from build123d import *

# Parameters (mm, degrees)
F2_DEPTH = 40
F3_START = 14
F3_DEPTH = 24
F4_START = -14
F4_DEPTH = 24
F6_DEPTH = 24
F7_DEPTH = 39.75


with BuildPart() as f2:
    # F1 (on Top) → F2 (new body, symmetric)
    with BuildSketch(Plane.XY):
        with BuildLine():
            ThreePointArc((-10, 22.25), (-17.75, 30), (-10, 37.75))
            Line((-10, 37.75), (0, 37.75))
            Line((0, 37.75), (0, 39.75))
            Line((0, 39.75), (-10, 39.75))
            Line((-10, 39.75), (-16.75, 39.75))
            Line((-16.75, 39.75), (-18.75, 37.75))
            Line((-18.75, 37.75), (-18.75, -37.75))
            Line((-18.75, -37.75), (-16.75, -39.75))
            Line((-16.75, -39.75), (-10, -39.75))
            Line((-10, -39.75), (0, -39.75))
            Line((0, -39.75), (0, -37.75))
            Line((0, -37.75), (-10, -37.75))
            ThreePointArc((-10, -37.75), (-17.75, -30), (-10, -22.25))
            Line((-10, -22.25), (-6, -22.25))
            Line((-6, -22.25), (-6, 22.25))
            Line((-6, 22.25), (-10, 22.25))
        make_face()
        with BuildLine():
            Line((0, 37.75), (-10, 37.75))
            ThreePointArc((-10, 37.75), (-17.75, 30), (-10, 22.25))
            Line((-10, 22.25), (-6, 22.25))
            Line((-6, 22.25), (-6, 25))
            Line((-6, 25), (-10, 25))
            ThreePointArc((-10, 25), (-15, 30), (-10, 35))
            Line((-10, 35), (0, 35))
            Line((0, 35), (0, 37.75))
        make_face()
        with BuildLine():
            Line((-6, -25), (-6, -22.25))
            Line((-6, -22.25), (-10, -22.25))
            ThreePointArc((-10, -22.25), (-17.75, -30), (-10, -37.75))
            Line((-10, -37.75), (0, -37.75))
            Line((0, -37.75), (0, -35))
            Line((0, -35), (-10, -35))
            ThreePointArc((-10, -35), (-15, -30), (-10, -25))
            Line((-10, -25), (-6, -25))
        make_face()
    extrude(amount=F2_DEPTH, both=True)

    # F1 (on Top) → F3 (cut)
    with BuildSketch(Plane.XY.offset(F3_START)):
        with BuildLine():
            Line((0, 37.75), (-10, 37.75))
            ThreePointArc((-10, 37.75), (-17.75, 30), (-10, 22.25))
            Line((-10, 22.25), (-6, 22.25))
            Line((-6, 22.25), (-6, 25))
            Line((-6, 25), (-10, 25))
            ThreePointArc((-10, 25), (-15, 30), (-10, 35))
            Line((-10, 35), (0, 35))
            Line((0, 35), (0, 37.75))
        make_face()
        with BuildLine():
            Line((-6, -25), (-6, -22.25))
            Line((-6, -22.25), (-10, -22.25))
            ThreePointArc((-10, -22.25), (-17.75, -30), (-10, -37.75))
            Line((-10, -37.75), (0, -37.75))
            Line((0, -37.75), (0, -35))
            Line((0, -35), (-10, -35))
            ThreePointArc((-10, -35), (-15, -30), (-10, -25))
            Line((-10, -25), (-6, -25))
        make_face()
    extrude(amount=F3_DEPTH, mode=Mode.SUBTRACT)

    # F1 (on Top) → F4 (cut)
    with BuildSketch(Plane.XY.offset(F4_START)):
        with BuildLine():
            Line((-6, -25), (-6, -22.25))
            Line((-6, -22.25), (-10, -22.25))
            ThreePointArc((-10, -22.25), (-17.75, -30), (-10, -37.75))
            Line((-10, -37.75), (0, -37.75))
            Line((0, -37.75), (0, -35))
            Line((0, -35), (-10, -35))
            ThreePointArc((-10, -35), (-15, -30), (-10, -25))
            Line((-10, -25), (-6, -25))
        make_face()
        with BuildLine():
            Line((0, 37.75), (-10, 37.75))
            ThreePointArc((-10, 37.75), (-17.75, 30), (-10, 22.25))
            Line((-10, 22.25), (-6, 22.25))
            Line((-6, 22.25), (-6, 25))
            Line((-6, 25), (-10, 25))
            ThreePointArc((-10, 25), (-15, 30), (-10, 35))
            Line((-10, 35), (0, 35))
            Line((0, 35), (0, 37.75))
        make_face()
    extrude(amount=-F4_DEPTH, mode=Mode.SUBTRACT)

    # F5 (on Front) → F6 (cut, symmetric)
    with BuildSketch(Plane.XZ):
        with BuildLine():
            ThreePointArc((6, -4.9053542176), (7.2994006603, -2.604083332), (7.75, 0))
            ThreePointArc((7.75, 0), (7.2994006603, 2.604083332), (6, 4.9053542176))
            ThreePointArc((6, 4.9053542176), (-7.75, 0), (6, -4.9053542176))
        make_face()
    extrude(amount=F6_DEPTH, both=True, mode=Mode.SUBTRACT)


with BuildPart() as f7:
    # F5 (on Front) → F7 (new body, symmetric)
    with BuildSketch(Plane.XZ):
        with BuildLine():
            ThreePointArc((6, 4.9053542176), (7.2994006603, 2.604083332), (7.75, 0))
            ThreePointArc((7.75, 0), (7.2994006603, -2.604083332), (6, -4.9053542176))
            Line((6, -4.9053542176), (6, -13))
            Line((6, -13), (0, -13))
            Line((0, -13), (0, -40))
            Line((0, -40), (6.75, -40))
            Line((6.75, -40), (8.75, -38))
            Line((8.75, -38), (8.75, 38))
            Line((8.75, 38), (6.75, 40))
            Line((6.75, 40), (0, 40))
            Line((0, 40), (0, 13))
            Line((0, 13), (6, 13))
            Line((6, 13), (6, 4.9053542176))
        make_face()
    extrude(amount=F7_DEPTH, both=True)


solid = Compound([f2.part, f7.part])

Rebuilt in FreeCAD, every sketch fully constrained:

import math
import FreeCAD as App
import Part
import Sketcher

V = App.Vector
Q = App.Units.Quantity

doc = App.newDocument("Part")
body = doc.addObject("PartDesign::Body", "Body")

# Sketch on XY plane
sketch1 = body.newObject("Sketcher::SketchObject", "Sketch")
sketch1.AttachmentSupport = (doc.getObject("XY_Plane"), [""])
sketch1.MapMode = "FlatFace"
sketch1.addGeometry([
    Part.LineSegment(V(0, 39.75, 0), V(-16.75, 39.75, 0)),  # 0
    Part.LineSegment(V(-16.75, 39.75, 0), V(-18.75, 37.75, 0)),  # 1
    Part.LineSegment(V(-18.75, 37.75, 0), V(-18.75, -37.75, 0)),  # 2
    Part.LineSegment(V(-18.75, -37.75, 0), V(-16.75, -39.75, 0)),  # 3
    Part.LineSegment(V(-16.75, -39.75, 0), V(0, -39.75, 0)),  # 4
    Part.LineSegment(V(0, -39.75, 0), V(0, -35, 0)),  # 5
    Part.LineSegment(V(0, -35, 0), V(-10, -35, 0)),  # 6
    Part.ArcOfCircle(Part.Circle(V(-10, -30, 0), V(0, 0, 1), 5), math.radians(90), math.radians(270)),  # 7
    Part.LineSegment(V(-10, -25, 0), V(-6, -25, 0)),  # 8
    Part.LineSegment(V(-6, -25, 0), V(-6, 25, 0)),  # 9
    Part.LineSegment(V(-6, 25, 0), V(-10, 25, 0)),  # 10
    Part.ArcOfCircle(Part.Circle(V(-10, 30, 0), V(0, 0, 1), 5), math.radians(90), math.radians(270)),  # 11
    Part.LineSegment(V(-10, 35, 0), V(0, 35, 0)),  # 12
    Part.LineSegment(V(0, 35, 0), V(0, 39.75, 0)),  # 13
], False)
sketch1.addConstraint([
    Sketcher.Constraint("Coincident", 0, 2, 1, 1),
    Sketcher.Constraint("Coincident", 1, 2, 2, 1),
    Sketcher.Constraint("Coincident", 2, 2, 3, 1),
    Sketcher.Constraint("Coincident", 3, 2, 4, 1),
    Sketcher.Constraint("Coincident", 4, 2, 5, 1),
    Sketcher.Constraint("Coincident", 5, 2, 6, 1),
    Sketcher.Constraint("Tangent", 6, 2, 7, 2),
    Sketcher.Constraint("Tangent", 7, 1, 8, 1),
    Sketcher.Constraint("Coincident", 8, 2, 9, 1),
    Sketcher.Constraint("Coincident", 9, 2, 10, 1),
    Sketcher.Constraint("Tangent", 10, 2, 11, 2),
    Sketcher.Constraint("Tangent", 11, 1, 12, 1),
    Sketcher.Constraint("Coincident", 12, 2, 13, 1),
    Sketcher.Constraint("Coincident", 13, 2, 0, 1),
    Sketcher.Constraint("Horizontal", 0),
    Sketcher.Constraint("Vertical", 2),
    Sketcher.Constraint("Horizontal", 4),
    Sketcher.Constraint("Vertical", 5),
    Sketcher.Constraint("Horizontal", 6),
    Sketcher.Constraint("Horizontal", 8),
    Sketcher.Constraint("Vertical", 9),
    Sketcher.Constraint("Horizontal", 10),
    Sketcher.Constraint("Horizontal", 12),
    Sketcher.Constraint("Vertical", 13),
    Sketcher.Constraint("Equal", 7, 11),
    Sketcher.Constraint("Symmetric", 5, 2, 12, 2, -1, 1),
    Sketcher.Constraint("Symmetric", 0, 2, 3, 2, -1),
    Sketcher.Constraint("PointOnObject", 4, 2, -2),
    Sketcher.Constraint("Perpendicular", 1, 3),
    Sketcher.Constraint("Vertical", 7, 3, 11, 3),
    Sketcher.Constraint("Equal", 1, 3),
    Sketcher.Constraint("Radius", 7, Q("5 mm")),
    Sketcher.Constraint("DistanceX", 6, 2, 6, 1, Q("10 mm")),
    Sketcher.Constraint("DistanceX", 8, 1, 8, 2, Q("4 mm")),
    Sketcher.Constraint("DistanceY", 9, 1, 9, 2, Q("50 mm")),
    Sketcher.Constraint("DistanceY", 2, 2, 2, 1, Q("75.5 mm")),
    Sketcher.Constraint("DistanceX", 1, 2, 0, 2, Q("2 mm")),
    Sketcher.Constraint("DistanceX", 0, 2, 0, 1, Q("16.75 mm")),
])
pad1 = body.newObject("PartDesign::Pad", "Pad")
pad1.Profile = sketch1
pad1.Length = 80
pad1.Midplane = True

# Sketch on XY plane
sketch2 = body.newObject("Sketcher::SketchObject", "Sketch001")
sketch2.AttachmentSupport = (doc.getObject("XY_Plane"), [""])
sketch2.MapMode = "FlatFace"
sketch2.AttachmentOffset = App.Placement(V(0, 0, 14), App.Rotation())
sketch2.addGeometry([
    Part.LineSegment(V(0, 37.75, 0), V(-10, 37.75, 0)),  # 0
    Part.ArcOfCircle(Part.Circle(V(-10, 30, 0), V(0, 0, 1), 7.75), math.radians(90), math.radians(270)),  # 1
    Part.LineSegment(V(-10, 22.25, 0), V(-6, 22.25, 0)),  # 2
    Part.LineSegment(V(-6, 22.25, 0), V(-6, 25, 0)),  # 3
    Part.LineSegment(V(-6, 25, 0), V(-10, 25, 0)),  # 4
    Part.ArcOfCircle(Part.Circle(V(-10, 30, 0), V(0, 0, 1), 5), math.radians(90), math.radians(270)),  # 5
    Part.LineSegment(V(-10, 35, 0), V(0, 35, 0)),  # 6
    Part.LineSegment(V(0, 35, 0), V(0, 37.75, 0)),  # 7
    Part.LineSegment(V(-6, -25, 0), V(-6, -22.25, 0)),  # 8
    Part.LineSegment(V(-6, -22.25, 0), V(-10, -22.25, 0)),  # 9
    Part.ArcOfCircle(Part.Circle(V(-10, -30, 0), V(0, 0, 1), 7.75), math.radians(90), math.radians(270)),  # 10
    Part.LineSegment(V(-10, -37.75, 0), V(0, -37.75, 0)),  # 11
    Part.LineSegment(V(0, -37.75, 0), V(0, -35, 0)),  # 12
    Part.LineSegment(V(0, -35, 0), V(-10, -35, 0)),  # 13
    Part.ArcOfCircle(Part.Circle(V(-10, -30, 0), V(0, 0, 1), 5), math.radians(90), math.radians(270)),  # 14
    Part.LineSegment(V(-10, -25, 0), V(-6, -25, 0)),  # 15
], False)
sketch2.addConstraint([
    Sketcher.Constraint("Tangent", 0, 2, 1, 1),
    Sketcher.Constraint("Tangent", 1, 2, 2, 1),
    Sketcher.Constraint("Coincident", 2, 2, 3, 1),
    Sketcher.Constraint("Coincident", 3, 2, 4, 1),
    Sketcher.Constraint("Tangent", 4, 2, 5, 2),
    Sketcher.Constraint("Tangent", 5, 1, 6, 1),
    Sketcher.Constraint("Coincident", 6, 2, 7, 1),
    Sketcher.Constraint("Coincident", 7, 2, 0, 1),
    Sketcher.Constraint("Coincident", 8, 2, 9, 1),
    Sketcher.Constraint("Tangent", 9, 2, 10, 1),
    Sketcher.Constraint("Tangent", 10, 2, 11, 1),
    Sketcher.Constraint("Coincident", 11, 2, 12, 1),
    Sketcher.Constraint("Coincident", 12, 2, 13, 1),
    Sketcher.Constraint("Tangent", 13, 2, 14, 2),
    Sketcher.Constraint("Tangent", 14, 1, 15, 1),
    Sketcher.Constraint("Coincident", 15, 2, 8, 1),
    Sketcher.Constraint("Horizontal", 0),
    Sketcher.Constraint("Horizontal", 2),
    Sketcher.Constraint("Vertical", 3),
    Sketcher.Constraint("Horizontal", 4),
    Sketcher.Constraint("Horizontal", 6),
    Sketcher.Constraint("Vertical", 7),
    Sketcher.Constraint("Vertical", 8),
    Sketcher.Constraint("Horizontal", 9),
    Sketcher.Constraint("Horizontal", 11),
    Sketcher.Constraint("Vertical", 12),
    Sketcher.Constraint("Horizontal", 13),
    Sketcher.Constraint("Horizontal", 15),
    Sketcher.Constraint("Coincident", 5, 3, 1, 3),
    Sketcher.Constraint("Coincident", 14, 3, 10, 3),
    Sketcher.Constraint("Equal", 1, 10),
    Sketcher.Constraint("Equal", 5, 14),
    Sketcher.Constraint("Symmetric", 7, 2, 11, 2, -1, 1),
    Sketcher.Constraint("PointOnObject", 6, 2, -2),
    Sketcher.Constraint("Vertical", 5, 3, 10, 3),
    Sketcher.Constraint("Vertical", 3, 2, 8, 2),
    Sketcher.Constraint("Radius", 5, Q("5 mm")),
    Sketcher.Constraint("DistanceX", 0, 2, 0, 1, Q("10 mm")),
    Sketcher.Constraint("DistanceX", 2, 1, 2, 2, Q("4 mm")),
    Sketcher.Constraint("Radius", 1, Q("7.75 mm")),
    Sketcher.Constraint("DistanceY", -1, 1, 1, 3, Q("30 mm")),
])
pocket1 = body.newObject("PartDesign::Pocket", "Pocket")
pocket1.Profile = sketch2
pocket1.Length = 24
pocket1.Reversed = True

# Sketch on XY plane
sketch3 = body.newObject("Sketcher::SketchObject", "Sketch002")
sketch3.AttachmentSupport = (doc.getObject("XY_Plane"), [""])
sketch3.MapMode = "FlatFace"
sketch3.AttachmentOffset = App.Placement(V(0, 0, -14), App.Rotation())
sketch3.addGeometry([
    Part.LineSegment(V(-6, -25, 0), V(-6, -22.25, 0)),  # 0
    Part.LineSegment(V(-6, -22.25, 0), V(-10, -22.25, 0)),  # 1
    Part.ArcOfCircle(Part.Circle(V(-10, -30, 0), V(0, 0, 1), 7.75), math.radians(90), math.radians(270)),  # 2
    Part.LineSegment(V(-10, -37.75, 0), V(0, -37.75, 0)),  # 3
    Part.LineSegment(V(0, -37.75, 0), V(0, -35, 0)),  # 4
    Part.LineSegment(V(0, -35, 0), V(-10, -35, 0)),  # 5
    Part.ArcOfCircle(Part.Circle(V(-10, -30, 0), V(0, 0, 1), 5), math.radians(90), math.radians(270)),  # 6
    Part.LineSegment(V(-10, -25, 0), V(-6, -25, 0)),  # 7
    Part.LineSegment(V(0, 37.75, 0), V(-10, 37.75, 0)),  # 8
    Part.ArcOfCircle(Part.Circle(V(-10, 30, 0), V(0, 0, 1), 7.75), math.radians(90), math.radians(270)),  # 9
    Part.LineSegment(V(-10, 22.25, 0), V(-6, 22.25, 0)),  # 10
    Part.LineSegment(V(-6, 22.25, 0), V(-6, 25, 0)),  # 11
    Part.LineSegment(V(-6, 25, 0), V(-10, 25, 0)),  # 12
    Part.ArcOfCircle(Part.Circle(V(-10, 30, 0), V(0, 0, 1), 5), math.radians(90), math.radians(270)),  # 13
    Part.LineSegment(V(-10, 35, 0), V(0, 35, 0)),  # 14
    Part.LineSegment(V(0, 35, 0), V(0, 37.75, 0)),  # 15
], False)
sketch3.addConstraint([
    Sketcher.Constraint("Coincident", 0, 2, 1, 1),
    Sketcher.Constraint("Tangent", 1, 2, 2, 1),
    Sketcher.Constraint("Tangent", 2, 2, 3, 1),
    Sketcher.Constraint("Coincident", 3, 2, 4, 1),
    Sketcher.Constraint("Coincident", 4, 2, 5, 1),
    Sketcher.Constraint("Tangent", 5, 2, 6, 2),
    Sketcher.Constraint("Tangent", 6, 1, 7, 1),
    Sketcher.Constraint("Coincident", 7, 2, 0, 1),
    Sketcher.Constraint("Tangent", 8, 2, 9, 1),
    Sketcher.Constraint("Tangent", 9, 2, 10, 1),
    Sketcher.Constraint("Coincident", 10, 2, 11, 1),
    Sketcher.Constraint("Coincident", 11, 2, 12, 1),
    Sketcher.Constraint("Tangent", 12, 2, 13, 2),
    Sketcher.Constraint("Tangent", 13, 1, 14, 1),
    Sketcher.Constraint("Coincident", 14, 2, 15, 1),
    Sketcher.Constraint("Coincident", 15, 2, 8, 1),
    Sketcher.Constraint("Vertical", 0),
    Sketcher.Constraint("Horizontal", 1),
    Sketcher.Constraint("Horizontal", 3),
    Sketcher.Constraint("Vertical", 4),
    Sketcher.Constraint("Horizontal", 5),
    Sketcher.Constraint("Horizontal", 7),
    Sketcher.Constraint("Horizontal", 8),
    Sketcher.Constraint("Horizontal", 10),
    Sketcher.Constraint("Vertical", 11),
    Sketcher.Constraint("Horizontal", 12),
    Sketcher.Constraint("Horizontal", 14),
    Sketcher.Constraint("Vertical", 15),
    Sketcher.Constraint("Coincident", 6, 3, 2, 3),
    Sketcher.Constraint("Coincident", 13, 3, 9, 3),
    Sketcher.Constraint("Equal", 2, 9),
    Sketcher.Constraint("Equal", 6, 13),
    Sketcher.Constraint("Symmetric", 4, 2, 14, 2, -1, 1),
    Sketcher.Constraint("PointOnObject", 3, 2, -2),
    Sketcher.Constraint("Vertical", 6, 3, 9, 3),
    Sketcher.Constraint("Vertical", 7, 2, 10, 2),
    Sketcher.Constraint("Radius", 6, Q("5 mm")),
    Sketcher.Constraint("DistanceX", 1, 2, 1, 1, Q("4 mm")),
    Sketcher.Constraint("DistanceX", 3, 1, 3, 2, Q("10 mm")),
    Sketcher.Constraint("Radius", 2, Q("7.75 mm")),
    Sketcher.Constraint("DistanceY", 2, 3, -1, 1, Q("30 mm")),
])
pocket2 = body.newObject("PartDesign::Pocket", "Pocket001")
pocket2.Profile = sketch3
pocket2.Length = 24

# Sketch on XZ plane
sketch4 = body.newObject("Sketcher::SketchObject", "Sketch003")
sketch4.AttachmentSupport = (doc.getObject("XZ_Plane"), [""])
sketch4.MapMode = "FlatFace"
sketch4.addGeometry([
    Part.ArcOfCircle(Part.Circle(V(0, 0, 0), V(0, 0, 1), 7.75), math.radians(-39.268026), math.radians(0)),
    Part.ArcOfCircle(Part.Circle(V(0, 0, 0), V(0, 0, 1), 7.75), math.radians(0), math.radians(39.268026)),
    Part.ArcOfCircle(Part.Circle(V(0, 0, 0), V(0, 0, 1), 7.75), math.radians(39.268026), math.radians(320.731974)),
], False)
sketch4.addConstraint([
    Sketcher.Constraint("Tangent", 0, 2, 1, 1),
    Sketcher.Constraint("Tangent", 1, 2, 2, 1),
    Sketcher.Constraint("Tangent", 2, 2, 0, 1),
    Sketcher.Constraint("Coincident", 0, 3, -1, 1),
    Sketcher.Constraint("PointOnObject", 0, 2, -1),
    Sketcher.Constraint("Vertical", 1, 2, 2, 2),
    Sketcher.Constraint("Radius", 0, Q("7.75 mm")),
    Sketcher.Constraint("DistanceX", -1, 1, 1, 2, Q("6 mm")),
])
pocket3 = body.newObject("PartDesign::Pocket", "Pocket002")
pocket3.Profile = sketch4
pocket3.Length = 48
pocket3.Midplane = True
body2 = doc.addObject("PartDesign::Body", "Body001")

# Sketch on XZ plane
sketch5 = body2.newObject("Sketcher::SketchObject", "Sketch004")
sketch5.AttachmentSupport = (doc.getObject("XZ_Plane001"), [""])
sketch5.MapMode = "FlatFace"
sketch5.addGeometry([
    Part.ArcOfCircle(Part.Circle(V(0, 0, 0), V(0, 0, 1), 7.75), math.radians(0), math.radians(39.268026)),  # 0
    Part.ArcOfCircle(Part.Circle(V(0, 0, 0), V(0, 0, 1), 7.75), math.radians(-39.268026), math.radians(0)),  # 1
    Part.LineSegment(V(6, -4.905354, 0), V(6, -13, 0)),  # 2
    Part.LineSegment(V(6, -13, 0), V(0, -13, 0)),  # 3
    Part.LineSegment(V(0, -13, 0), V(0, -40, 0)),  # 4
    Part.LineSegment(V(0, -40, 0), V(6.75, -40, 0)),  # 5
    Part.LineSegment(V(6.75, -40, 0), V(8.75, -38, 0)),  # 6
    Part.LineSegment(V(8.75, -38, 0), V(8.75, 38, 0)),  # 7
    Part.LineSegment(V(8.75, 38, 0), V(6.75, 40, 0)),  # 8
    Part.LineSegment(V(6.75, 40, 0), V(0, 40, 0)),  # 9
    Part.LineSegment(V(0, 40, 0), V(0, 13, 0)),  # 10
    Part.LineSegment(V(0, 13, 0), V(6, 13, 0)),  # 11
    Part.LineSegment(V(6, 13, 0), V(6, 4.905354, 0)),  # 12
], False)
sketch5.addConstraint([
    Sketcher.Constraint("Tangent", 0, 1, 1, 2),
    Sketcher.Constraint("Coincident", 1, 1, 2, 1),
    Sketcher.Constraint("Coincident", 2, 2, 3, 1),
    Sketcher.Constraint("Coincident", 3, 2, 4, 1),
    Sketcher.Constraint("Coincident", 4, 2, 5, 1),
    Sketcher.Constraint("Coincident", 5, 2, 6, 1),
    Sketcher.Constraint("Coincident", 6, 2, 7, 1),
    Sketcher.Constraint("Coincident", 7, 2, 8, 1),
    Sketcher.Constraint("Coincident", 8, 2, 9, 1),
    Sketcher.Constraint("Coincident", 9, 2, 10, 1),
    Sketcher.Constraint("Coincident", 10, 2, 11, 1),
    Sketcher.Constraint("Coincident", 11, 2, 12, 1),
    Sketcher.Constraint("Coincident", 12, 2, 0, 2),
    Sketcher.Constraint("Vertical", 2),
    Sketcher.Constraint("Horizontal", 3),
    Sketcher.Constraint("Vertical", 4),
    Sketcher.Constraint("Horizontal", 5),
    Sketcher.Constraint("Vertical", 7),
    Sketcher.Constraint("Horizontal", 9),
    Sketcher.Constraint("Vertical", 10),
    Sketcher.Constraint("Horizontal", 11),
    Sketcher.Constraint("Vertical", 12),
    Sketcher.Constraint("Coincident", 0, 3, -1, 1),
    Sketcher.Constraint("Equal", 0, 1),
    Sketcher.Constraint("Symmetric", 4, 2, 9, 2, -1, 1),
    Sketcher.Constraint("Symmetric", 3, 2, 10, 2, -1),
    Sketcher.Constraint("PointOnObject", 0, 1, -1),
    Sketcher.Constraint("Perpendicular", 6, 8),
    Sketcher.Constraint("Vertical", 5, 2, 8, 2),
    Sketcher.Constraint("Vertical", 2, 2, 11, 2),
    Sketcher.Constraint("Equal", 6, 8),
    Sketcher.Constraint("DistanceX", 3, 2, 3, 1, Q("6 mm")),
    Sketcher.Constraint("DistanceY", 4, 2, 4, 1, Q("27 mm")),
    Sketcher.Constraint("DistanceY", 7, 1, 7, 2, Q("76 mm")),
    Sketcher.Constraint("Radius", 0, Q("7.75 mm")),
    Sketcher.Constraint("DistanceY", 2, 2, -1, 1, Q("13 mm")),
    Sketcher.Constraint("DistanceX", 5, 2, 0, 1, Q("1 mm")),
])
pad2 = body2.newObject("PartDesign::Pad", "Pad001")
pad2.Profile = sketch5
pad2.Length = 79.5
pad2.Midplane = True

doc.recompute()
